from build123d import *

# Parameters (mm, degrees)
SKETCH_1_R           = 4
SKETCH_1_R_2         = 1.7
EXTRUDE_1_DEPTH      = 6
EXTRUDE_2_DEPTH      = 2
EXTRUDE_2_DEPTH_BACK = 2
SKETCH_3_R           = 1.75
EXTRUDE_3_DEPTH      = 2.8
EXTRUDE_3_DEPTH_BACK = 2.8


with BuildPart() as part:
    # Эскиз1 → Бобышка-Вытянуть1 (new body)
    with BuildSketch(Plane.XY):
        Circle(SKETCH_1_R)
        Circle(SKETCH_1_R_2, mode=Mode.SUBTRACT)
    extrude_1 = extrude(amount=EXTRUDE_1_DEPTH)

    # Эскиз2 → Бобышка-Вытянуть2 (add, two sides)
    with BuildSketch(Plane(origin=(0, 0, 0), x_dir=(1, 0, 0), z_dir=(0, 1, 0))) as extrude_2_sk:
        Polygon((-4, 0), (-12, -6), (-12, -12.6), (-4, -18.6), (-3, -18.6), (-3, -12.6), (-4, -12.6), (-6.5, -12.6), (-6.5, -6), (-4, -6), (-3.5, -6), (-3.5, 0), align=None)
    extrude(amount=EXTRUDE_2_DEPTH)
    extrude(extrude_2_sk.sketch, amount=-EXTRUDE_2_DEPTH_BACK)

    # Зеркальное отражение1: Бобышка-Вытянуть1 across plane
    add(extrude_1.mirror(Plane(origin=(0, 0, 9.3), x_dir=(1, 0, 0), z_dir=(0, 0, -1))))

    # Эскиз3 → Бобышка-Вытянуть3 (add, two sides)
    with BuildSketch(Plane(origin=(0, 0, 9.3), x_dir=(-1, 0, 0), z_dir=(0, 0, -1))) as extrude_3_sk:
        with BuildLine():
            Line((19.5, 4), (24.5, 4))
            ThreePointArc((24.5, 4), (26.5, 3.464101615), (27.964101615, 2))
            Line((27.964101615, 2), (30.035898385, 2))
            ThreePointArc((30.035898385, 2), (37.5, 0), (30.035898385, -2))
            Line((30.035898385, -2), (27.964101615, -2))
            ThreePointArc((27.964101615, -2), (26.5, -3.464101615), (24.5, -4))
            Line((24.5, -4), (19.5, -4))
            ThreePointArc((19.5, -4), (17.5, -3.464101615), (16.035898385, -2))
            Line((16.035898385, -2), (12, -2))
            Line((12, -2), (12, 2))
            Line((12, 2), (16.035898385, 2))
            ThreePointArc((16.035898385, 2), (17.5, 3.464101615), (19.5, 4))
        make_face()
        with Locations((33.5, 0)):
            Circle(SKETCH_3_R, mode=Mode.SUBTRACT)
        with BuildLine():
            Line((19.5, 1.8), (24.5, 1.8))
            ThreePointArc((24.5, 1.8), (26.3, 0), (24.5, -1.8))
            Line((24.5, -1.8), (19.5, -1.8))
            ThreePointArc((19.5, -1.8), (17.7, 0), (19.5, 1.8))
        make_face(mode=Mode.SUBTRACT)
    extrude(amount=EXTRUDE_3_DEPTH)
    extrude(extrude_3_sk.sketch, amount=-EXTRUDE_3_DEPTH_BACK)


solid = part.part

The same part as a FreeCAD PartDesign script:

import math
import FreeCAD as App
import Part
import Sketcher
from FreeCAD import Vector
Q = App.Units.Quantity


def add_polygon(sketch, points):
    """Adds a closed chain of lines whose ends are joined by coincident constraints."""
    first, n = sketch.GeometryCount, len(points)
    for a, b in zip(points, points[1:] + points[:1]):
        sketch.addGeometry(Part.LineSegment(App.Vector(*a, 0), App.Vector(*b, 0)), False)
    for i in range(n):
        sketch.addConstraint(Sketcher.Constraint("Coincident", first + i, 2, first + (i + 1) % n, 1))

doc = App.newDocument("Part")
body = doc.addObject("PartDesign::Body", "Body")

# Sketch on XY plane
sketch1 = doc.addObject("Sketcher::SketchObject", "Sketch")
body.addObject(sketch1)
sketch1.AttachmentSupport = (doc.XY_Plane, [""])
sketch1.MapMode = "FlatFace"
sketch1.addGeometry([
    Part.Circle(Vector(0, 0, 0), Vector(0, 0, 1), 4),
    Part.Circle(Vector(0, 0, 0), Vector(0, 0, 1), 1.7),
], False)
sketch1.addConstraint([
    Sketcher.Constraint("Coincident", 0, 3, -1, 1),
    Sketcher.Constraint("Coincident", 1, 3, -1, 1),
    Sketcher.Constraint("Diameter", 0, Q("8 mm")),
    Sketcher.Constraint("Diameter", 1, Q("3.4 mm")),
])
pad1 = doc.addObject("PartDesign::Pad", "Pad")
body.addObject(pad1)
pad1.Profile = sketch1
pad1.Length = 6

# Sketch on XZ plane
sketch2 = doc.addObject("Sketcher::SketchObject", "Sketch001")
body.addObject(sketch2)
sketch2.AttachmentSupport = (doc.XZ_Plane, [""])
sketch2.MapMode = "FlatFace"
add_polygon(sketch2, [(-4, 0), (-12, 6), (-12, 12.6), (-4, 18.6), (-3, 18.6), (-3, 12.6), (-6.5, 12.6), (-6.5, 6), (-3.5, 6), (-3.5, 0)])  # lines 0-9
sketch2.addConstraint([
    Sketcher.Constraint("Vertical", 1),
    Sketcher.Constraint("Horizontal", 3),
    Sketcher.Constraint("Vertical", 4),
    Sketcher.Constraint("Horizontal", 5),
    Sketcher.Constraint("Vertical", 6),
    Sketcher.Constraint("Horizontal", 7),
    Sketcher.Constraint("Vertical", 8),
    Sketcher.Constraint("Horizontal", 9),
    Sketcher.Constraint("PointOnObject", 8, 2, -1),
    Sketcher.Constraint("Horizontal", 1, 2, 4, 2),
    Sketcher.Constraint("Horizontal", 0, 2, 6, 2),
    Sketcher.Constraint("Vertical", 2, 2, 9, 2),
    Sketcher.Constraint("Equal", 4, 8),
    Sketcher.Constraint("DistanceX", 3, 1, 3, 2, Q("1 mm")),
    Sketcher.Constraint("DistanceX", 7, 1, 7, 2, Q("3 mm")),
    Sketcher.Constraint("DistanceY", 4, 2, 4, 1, Q("6 mm")),
    Sketcher.Constraint("Distance", 0, Q("10 mm")),
    Sketcher.Constraint("DistanceX", 5, 2, 5, 1, Q("3.5 mm")),
    Sketcher.Constraint("DistanceY", 1, 1, 1, 2, Q("6.6 mm")),
    Sketcher.Constraint("DistanceX", 0, 2, -1, 1, Q("12 mm")),
])
pad2 = doc.addObject("PartDesign::Pad", "Pad001")
body.addObject(pad2)
pad2.Profile = sketch2
pad2.Type = "TwoLengths"
pad2.Length = 2
pad2.Length2 = 2
pad2.Reversed = True
doc.recompute()

datumplane = doc.addObject("PartDesign::Plane", "DatumPlane")
body.addObject(datumplane)
datumplane.AttachmentSupport = (doc.XY_Plane, [""])
datumplane.MapMode = "FlatFace"
datumplane.AttachmentOffset = App.Placement(Vector(0, 0, 9.3), App.Rotation())
mirrored = doc.addObject("PartDesign::Mirrored", "Mirrored")
body.addObject(mirrored)
mirrored.Originals = [pad1]
mirrored.MirrorPlane = (datumplane, [""])
body.Tip = mirrored

# Sketch on XY plane
sketch3 = doc.addObject("Sketcher::SketchObject", "Sketch002")
body.addObject(sketch3)
sketch3.AttachmentSupport = (doc.XY_Plane, [""])
sketch3.MapMode = "FlatFace"
sketch3.AttachmentOffset = App.Placement(Vector(0, 0, 9.3), App.Rotation())
sketch3.addGeometry([
    Part.LineSegment(Vector(-24.5, 4, 0), Vector(-19.5, 4, 0)),  # 0
    Part.ArcOfCircle(Part.Circle(Vector(-19.5, 0, 0), Vector(0, 0, 1), 4), math.radians(30), math.radians(90)),  # 1
    Part.LineSegment(Vector(-16, 2, 0), Vector(-12, 2, 0)),  # 2
    Part.LineSegment(Vector(-12, 2, 0), Vector(-12, -2, 0)),  # 3
    Part.LineSegment(Vector(-12, -2, 0), Vector(-16, -2, 0)),  # 4
    Part.ArcOfCircle(Part.Circle(Vector(-19.5, 0, 0), Vector(0, 0, 1), 4), math.radians(-90), math.radians(-30)),  # 5
    Part.LineSegment(Vector(-19.5, -4, 0), Vector(-24.5, -4, 0)),  # 6
    Part.ArcOfCircle(Part.Circle(Vector(-24.5, 0, 0), Vector(0, 0, 1), 4), math.radians(-150), math.radians(-90)),  # 7
    Part.LineSegment(Vector(-28, -2, 0), Vector(-30, -2, 0)),  # 8
    Part.ArcOfCircle(Part.Circle(Vector(-33.5, 0, 0), Vector(0, 0, 1), 4), math.radians(30), math.radians(330)),  # 9
    Part.LineSegment(Vector(-30, 2, 0), Vector(-28, 2, 0)),  # 10
    Part.ArcOfCircle(Part.Circle(Vector(-24.5, 0, 0), Vector(0, 0, 1), 4), math.radians(90), math.radians(150)),  # 11
    Part.Circle(Vector(-33.5, 0, 0), Vector(0, 0, 1), 1.8),  # 12
    Part.LineSegment(Vector(-19.5, 1.8, 0), Vector(-24.5, 1.8, 0)),  # 13
    Part.ArcOfCircle(Part.Circle(Vector(-24.5, 0, 0), Vector(0, 0, 1), 1.8), math.radians(90), math.radians(270)),  # 14
    Part.LineSegment(Vector(-24.5, -1.8, 0), Vector(-19.5, -1.8, 0)),  # 15
    Part.ArcOfCircle(Part.Circle(Vector(-19.5, 0, 0), Vector(0, 0, 1), 1.8), math.radians(-90), math.radians(90)),  # 16
], False)
sketch3.addConstraint([
    Sketcher.Constraint("Tangent", 0, 2, 1, 2),
    Sketcher.Constraint("Coincident", 1, 1, 2, 1),
    Sketcher.Constraint("Coincident", 2, 2, 3, 1),
    Sketcher.Constraint("Coincident", 3, 2, 4, 1),
    Sketcher.Constraint("Coincident", 4, 2, 5, 2),
    Sketcher.Constraint("Tangent", 5, 1, 6, 1),
    Sketcher.Constraint("Tangent", 6, 2, 7, 2),
    Sketcher.Constraint("Coincident", 7, 1, 8, 1),
    Sketcher.Constraint("Coincident", 8, 2, 9, 2),
    Sketcher.Constraint("Coincident", 9, 1, 10, 1),
    Sketcher.Constraint("Coincident", 10, 2, 11, 2),
    Sketcher.Constraint("Tangent", 11, 1, 0, 1),
    Sketcher.Constraint("Tangent", 13, 2, 14, 1),
    Sketcher.Constraint("Tangent", 14, 2, 15, 1),
    Sketcher.Constraint("Tangent", 15, 2, 16, 1),
    Sketcher.Constraint("Tangent", 16, 2, 13, 1),
    Sketcher.Constraint("Horizontal", 0),
    Sketcher.Constraint("Horizontal", 2),
    Sketcher.Constraint("Vertical", 3),
    Sketcher.Constraint("Horizontal", 4),
    Sketcher.Constraint("Horizontal", 6),
    Sketcher.Constraint("Horizontal", 8),
    Sketcher.Constraint("Horizontal", 10),
    Sketcher.Constraint("Horizontal", 13),
    Sketcher.Constraint("Horizontal", 15),
    Sketcher.Constraint("Coincident", 5, 3, 1, 3),
    Sketcher.Constraint("Coincident", 11, 3, 7, 3),
    Sketcher.Constraint("Coincident", 12, 3, 9, 3),
    Sketcher.Constraint("Coincident", 14, 3, 7, 3),
    Sketcher.Constraint("Coincident", 16, 3, 1, 3),
    Sketcher.Constraint("Equal", 1, 5),
    Sketcher.Constraint("Equal", 7, 9),
    Sketcher.Constraint("Symmetric", 1, 1, 4, 2, -1),
    Sketcher.Constraint("Symmetric", 8, 2, 9, 1, -1),
    Sketcher.Constraint("Horizontal", 4, 2, 7, 1),
    Sketcher.Constraint("Radius", 1, Q("4 mm")),
    Sketcher.Constraint("Diameter", 12, Q("3.5 mm")),
    Sketcher.Constraint("Radius", 14, Q("1.8 mm")),
    Sketcher.Constraint("DistanceX", 0, 1, 0, 2, Q("5 mm")),
    Sketcher.Constraint("DistanceY", 3, 2, 3, 1, Q("4 mm")),
    Sketcher.Constraint("DistanceX", 2, 2, -1, 1, Q("12 mm")),
    Sketcher.Constraint("DistanceX", 9, 3, 7, 3, Q("9 mm")),
    Sketcher.Constraint("DistanceX", 1, 3, -1, 1, Q("19.5 mm")),
])
pad3 = doc.addObject("PartDesign::Pad", "Pad002")
body.addObject(pad3)
pad3.Profile = sketch3
pad3.Type = "TwoLengths"
pad3.Length = 2.8
pad3.Length2 = 2.8
pad3.Reversed = True

doc.recompute()
